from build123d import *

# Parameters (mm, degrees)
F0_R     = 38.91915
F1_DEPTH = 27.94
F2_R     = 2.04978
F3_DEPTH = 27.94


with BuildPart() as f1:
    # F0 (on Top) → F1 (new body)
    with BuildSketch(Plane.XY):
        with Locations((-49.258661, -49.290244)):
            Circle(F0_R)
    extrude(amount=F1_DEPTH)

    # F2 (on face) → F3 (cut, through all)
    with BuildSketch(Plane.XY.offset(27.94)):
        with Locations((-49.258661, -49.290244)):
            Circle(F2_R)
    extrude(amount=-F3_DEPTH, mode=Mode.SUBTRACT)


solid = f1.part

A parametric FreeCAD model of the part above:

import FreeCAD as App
import Part
import Sketcher

V = App.Vector
Q = App.Units.Quantity

doc = App.newDocument("Part")
body = doc.addObject("PartDesign::Body", "Body")

# Sketch on XY plane
sketch1 = body.newObject("Sketcher::SketchObject", "Sketch")
sketch1.AttachmentSupport = (doc.getObject("XY_Plane"), [""])
sketch1.MapMode = "FlatFace"
sketch1.addGeometry(Part.Circle(V(-49, -49, 0), V(0, 0, 1), 39), False)
sketch1.addConstraint(Sketcher.Constraint("Diameter", 0, Q("3.0645 in")))
sketch1.addConstraint(Sketcher.Constraint("DistanceX", 0, 3, -1, 1, Q("49.258661 mm")))
sketch1.addConstraint(Sketcher.Constraint("DistanceY", 0, 3, -1, 1, Q("49.290244 mm")))
pad1 = body.newObject("PartDesign::Pad", "Pad")
pad1.Profile = sketch1
pad1.Length = Q("1.1 in")

# Sketch on XY plane
sketch2 = body.newObject("Sketcher::SketchObject", "Sketch001")
sketch2.AttachmentSupport = (doc.getObject("XY_Plane"), [""])
sketch2.MapMode = "FlatFace"
sketch2.AttachmentOffset = App.Placement(V(0, 0, 1.1 * 25.4), App.Rotation())
sketch2.addGeometry(Part.Circle(V(-49.3, -49.3, 0), V(0, 0, 1), 2), False)
sketch2.addConstraint(Sketcher.Constraint("Diameter", 0, Q("0.1614 in")))
sketch2.addConstraint(Sketcher.Constraint("DistanceX", 0, 3, -1, 1, Q("49.258661 mm")))
sketch2.addConstraint(Sketcher.Constraint("DistanceY", 0, 3, -1, 1, Q("49.290244 mm")))
pocket1 = body.newObject("PartDesign::Pocket", "Pocket")
pocket1.Profile = sketch2
pocket1.Type = "ThroughAll"

doc.recompute()
